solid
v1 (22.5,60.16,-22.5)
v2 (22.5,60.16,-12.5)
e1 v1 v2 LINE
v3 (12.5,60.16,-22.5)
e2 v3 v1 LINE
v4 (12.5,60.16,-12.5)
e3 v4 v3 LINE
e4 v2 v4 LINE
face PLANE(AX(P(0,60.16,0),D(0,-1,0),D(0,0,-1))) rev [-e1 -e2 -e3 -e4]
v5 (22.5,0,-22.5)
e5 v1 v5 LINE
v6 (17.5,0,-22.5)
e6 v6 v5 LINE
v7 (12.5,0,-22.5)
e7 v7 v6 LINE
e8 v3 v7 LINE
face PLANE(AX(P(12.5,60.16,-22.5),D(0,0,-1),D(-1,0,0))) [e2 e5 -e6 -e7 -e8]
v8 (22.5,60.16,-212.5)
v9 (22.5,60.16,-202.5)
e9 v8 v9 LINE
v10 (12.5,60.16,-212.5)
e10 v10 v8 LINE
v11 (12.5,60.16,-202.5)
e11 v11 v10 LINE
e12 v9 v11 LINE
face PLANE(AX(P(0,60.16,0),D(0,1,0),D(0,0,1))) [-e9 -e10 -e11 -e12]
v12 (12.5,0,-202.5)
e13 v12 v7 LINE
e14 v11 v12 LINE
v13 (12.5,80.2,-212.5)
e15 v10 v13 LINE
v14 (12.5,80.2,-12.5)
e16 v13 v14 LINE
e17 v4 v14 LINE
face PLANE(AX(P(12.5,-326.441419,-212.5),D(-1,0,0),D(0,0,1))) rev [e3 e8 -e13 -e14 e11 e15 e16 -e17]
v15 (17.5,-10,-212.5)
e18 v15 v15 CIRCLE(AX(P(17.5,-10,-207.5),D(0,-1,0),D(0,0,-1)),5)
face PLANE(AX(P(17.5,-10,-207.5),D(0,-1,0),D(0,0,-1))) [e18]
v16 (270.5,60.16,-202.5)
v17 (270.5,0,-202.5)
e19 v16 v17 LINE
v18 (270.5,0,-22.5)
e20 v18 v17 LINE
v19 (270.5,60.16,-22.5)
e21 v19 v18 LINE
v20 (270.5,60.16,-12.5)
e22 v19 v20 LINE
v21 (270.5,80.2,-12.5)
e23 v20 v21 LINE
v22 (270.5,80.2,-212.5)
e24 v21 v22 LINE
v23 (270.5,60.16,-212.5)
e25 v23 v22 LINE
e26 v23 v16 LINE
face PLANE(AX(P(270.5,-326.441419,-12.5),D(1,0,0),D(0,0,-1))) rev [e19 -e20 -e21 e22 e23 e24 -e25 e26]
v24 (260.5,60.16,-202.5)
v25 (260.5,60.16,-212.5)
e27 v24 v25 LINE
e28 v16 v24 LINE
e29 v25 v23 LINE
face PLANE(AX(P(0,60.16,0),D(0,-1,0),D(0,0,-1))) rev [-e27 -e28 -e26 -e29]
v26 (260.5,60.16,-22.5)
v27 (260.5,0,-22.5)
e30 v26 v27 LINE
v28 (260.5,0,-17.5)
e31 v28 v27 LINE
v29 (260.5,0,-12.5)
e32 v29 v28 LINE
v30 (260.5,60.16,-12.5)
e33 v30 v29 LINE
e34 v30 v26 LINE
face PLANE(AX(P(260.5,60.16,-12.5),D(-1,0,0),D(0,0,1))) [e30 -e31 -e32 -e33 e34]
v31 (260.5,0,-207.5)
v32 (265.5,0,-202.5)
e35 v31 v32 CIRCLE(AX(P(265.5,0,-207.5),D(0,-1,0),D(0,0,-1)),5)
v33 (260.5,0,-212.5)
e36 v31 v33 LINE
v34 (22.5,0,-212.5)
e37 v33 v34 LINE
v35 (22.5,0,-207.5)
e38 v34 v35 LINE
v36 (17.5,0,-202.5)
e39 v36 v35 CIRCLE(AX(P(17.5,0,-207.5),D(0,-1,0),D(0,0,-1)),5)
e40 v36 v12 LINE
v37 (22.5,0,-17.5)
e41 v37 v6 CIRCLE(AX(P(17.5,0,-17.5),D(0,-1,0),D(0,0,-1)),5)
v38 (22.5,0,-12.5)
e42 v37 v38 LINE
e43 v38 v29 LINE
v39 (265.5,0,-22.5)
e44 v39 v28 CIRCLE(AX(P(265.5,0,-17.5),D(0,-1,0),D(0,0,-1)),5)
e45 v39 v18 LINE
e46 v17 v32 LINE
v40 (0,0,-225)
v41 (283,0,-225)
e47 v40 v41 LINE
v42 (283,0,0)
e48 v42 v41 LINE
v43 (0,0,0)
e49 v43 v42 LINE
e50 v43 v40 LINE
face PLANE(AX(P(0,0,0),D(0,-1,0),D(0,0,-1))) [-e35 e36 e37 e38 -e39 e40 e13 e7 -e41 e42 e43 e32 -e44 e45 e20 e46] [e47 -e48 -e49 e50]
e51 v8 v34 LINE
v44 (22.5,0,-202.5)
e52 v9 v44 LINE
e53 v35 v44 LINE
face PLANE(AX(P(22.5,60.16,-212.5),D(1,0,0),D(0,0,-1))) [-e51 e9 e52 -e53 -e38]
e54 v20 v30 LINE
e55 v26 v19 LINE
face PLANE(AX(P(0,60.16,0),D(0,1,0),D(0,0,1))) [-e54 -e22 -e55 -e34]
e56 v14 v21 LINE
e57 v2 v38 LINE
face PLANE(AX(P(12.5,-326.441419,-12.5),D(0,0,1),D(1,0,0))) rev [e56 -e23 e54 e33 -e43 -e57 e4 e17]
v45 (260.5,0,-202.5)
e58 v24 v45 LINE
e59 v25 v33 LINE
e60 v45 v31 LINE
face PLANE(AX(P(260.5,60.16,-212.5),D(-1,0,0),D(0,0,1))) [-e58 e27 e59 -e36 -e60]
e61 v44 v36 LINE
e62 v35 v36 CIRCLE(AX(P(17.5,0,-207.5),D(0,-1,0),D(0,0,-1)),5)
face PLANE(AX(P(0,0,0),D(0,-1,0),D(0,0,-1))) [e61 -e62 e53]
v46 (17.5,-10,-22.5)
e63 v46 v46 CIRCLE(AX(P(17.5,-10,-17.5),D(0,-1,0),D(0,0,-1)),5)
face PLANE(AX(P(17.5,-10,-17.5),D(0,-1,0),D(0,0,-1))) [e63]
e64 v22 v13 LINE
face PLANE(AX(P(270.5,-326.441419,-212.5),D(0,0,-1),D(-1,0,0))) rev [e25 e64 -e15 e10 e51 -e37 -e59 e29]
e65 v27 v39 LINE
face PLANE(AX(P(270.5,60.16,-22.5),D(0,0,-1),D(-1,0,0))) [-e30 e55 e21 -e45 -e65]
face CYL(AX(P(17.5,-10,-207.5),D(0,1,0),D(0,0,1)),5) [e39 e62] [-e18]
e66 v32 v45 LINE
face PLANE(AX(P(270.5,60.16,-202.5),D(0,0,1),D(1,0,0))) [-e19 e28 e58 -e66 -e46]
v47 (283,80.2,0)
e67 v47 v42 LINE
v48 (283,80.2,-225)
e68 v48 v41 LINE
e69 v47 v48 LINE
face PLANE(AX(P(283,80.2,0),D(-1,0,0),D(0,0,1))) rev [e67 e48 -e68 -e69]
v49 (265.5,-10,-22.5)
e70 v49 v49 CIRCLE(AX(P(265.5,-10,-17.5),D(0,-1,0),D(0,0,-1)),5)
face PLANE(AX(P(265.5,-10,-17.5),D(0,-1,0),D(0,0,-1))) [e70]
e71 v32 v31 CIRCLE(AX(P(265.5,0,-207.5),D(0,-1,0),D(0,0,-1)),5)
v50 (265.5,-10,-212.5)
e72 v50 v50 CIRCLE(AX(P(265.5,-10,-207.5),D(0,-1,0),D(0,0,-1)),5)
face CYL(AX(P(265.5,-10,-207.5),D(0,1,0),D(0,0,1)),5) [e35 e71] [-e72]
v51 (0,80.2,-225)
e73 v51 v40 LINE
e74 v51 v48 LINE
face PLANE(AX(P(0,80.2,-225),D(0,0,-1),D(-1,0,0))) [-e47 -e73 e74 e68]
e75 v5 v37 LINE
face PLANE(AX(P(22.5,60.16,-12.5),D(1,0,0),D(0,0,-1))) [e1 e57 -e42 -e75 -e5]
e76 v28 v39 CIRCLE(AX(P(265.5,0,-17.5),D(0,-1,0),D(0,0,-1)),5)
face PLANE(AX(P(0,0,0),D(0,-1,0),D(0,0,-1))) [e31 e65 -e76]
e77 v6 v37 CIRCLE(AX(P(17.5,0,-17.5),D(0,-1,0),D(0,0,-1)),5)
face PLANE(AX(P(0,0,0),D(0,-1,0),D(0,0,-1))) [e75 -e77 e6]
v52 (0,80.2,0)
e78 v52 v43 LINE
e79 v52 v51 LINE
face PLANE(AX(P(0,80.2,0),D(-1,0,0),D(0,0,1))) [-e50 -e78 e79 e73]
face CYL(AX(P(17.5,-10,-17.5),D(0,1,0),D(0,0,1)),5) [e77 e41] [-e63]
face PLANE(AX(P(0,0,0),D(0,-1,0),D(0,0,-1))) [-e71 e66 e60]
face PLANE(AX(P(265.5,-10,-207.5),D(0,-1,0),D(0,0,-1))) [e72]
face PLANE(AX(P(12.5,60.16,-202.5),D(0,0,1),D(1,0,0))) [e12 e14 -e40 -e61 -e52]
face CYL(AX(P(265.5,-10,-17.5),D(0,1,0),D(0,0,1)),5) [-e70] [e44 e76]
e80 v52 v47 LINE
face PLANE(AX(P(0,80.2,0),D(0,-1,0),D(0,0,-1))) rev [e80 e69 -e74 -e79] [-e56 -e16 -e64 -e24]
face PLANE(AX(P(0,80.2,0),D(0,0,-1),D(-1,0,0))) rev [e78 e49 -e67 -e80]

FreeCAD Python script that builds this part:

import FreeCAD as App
import Part
import Sketcher
Q = App.Units.Quantity


def add_polygon(sketch, points):
    """Adds a closed chain of lines whose ends are joined by coincident constraints."""
    first, n = sketch.GeometryCount, len(points)
    for a, b in zip(points, points[1:] + points[:1]):
        sketch.addGeometry(Part.LineSegment(App.Vector(*a, 0), App.Vector(*b, 0)), False)
    for i in range(n):
        sketch.addConstraint(Sketcher.Constraint("Coincident", first + i, 2, first + (i + 1) % n, 1))

doc = App.newDocument("Part")
params = doc.addObject("Spreadsheet::Sheet", "Params")
for row, (alias, value) in enumerate([
    ("sketch1_width", "283 mm"),
    ("sketch1_height", "225 mm"),
    ("pad1_length", "80.2 mm"),
    ("sketch2_width", "258 mm"),
    ("sketch2_height", "200 mm"),
    ("pocket1_length", "80.2 mm"),
    ("sketch3_width", "10 mm"),
    ("pad2_length", "60.16 mm"),
    ("sketch4_diameter", "10 mm"),
    ("pad3_length", "10 mm"),
], start=1):
    params.set(f"A{row}", alias)
    params.set(f"B{row}", "=" + value)
    params.setAlias(f"B{row}", alias)

body = doc.addObject("PartDesign::Body", "Body")

sketch1 = body.newObject("Sketcher::SketchObject", "Sketch")
sketch1.AttachmentSupport = (doc.getObject("XZ_Plane"), [""])
sketch1.MapMode = "FlatFace"
add_polygon(sketch1, [(0, -225), (0, 0), (283, 0), (283, -225)])
sketch1.addConstraint([
    Sketcher.Constraint("Vertical", 0),
    Sketcher.Constraint("Horizontal", 1),
    Sketcher.Constraint("Vertical", 2),
    Sketcher.Constraint("Horizontal", 3),
    Sketcher.Constraint("Coincident", 0, 2, -1, 1),
    Sketcher.Constraint("DistanceX", 1, 1, 1, 2, Q("283 mm")),
    Sketcher.Constraint("DistanceY", 0, 1, 0, 2, Q("225 mm")),
])
sketch1.setExpression("Constraints[9]", "Params.sketch1_width")
sketch1.setExpression("Constraints[10]", "Params.sketch1_height")
pad1 = body.newObject("PartDesign::Pad", "Pad")
pad1.Profile = sketch1
pad1.setExpression("Length", "Params.pad1_length")
pad1.Reversed = True

sketch2 = body.newObject("Sketcher::SketchObject", "Sketch001")
sketch2.AttachmentSupport = (doc.getObject("XZ_Plane"), [""])
sketch2.MapMode = "FlatFace"
sketch2.AttachmentOffset = App.Placement(App.Vector(0, 0, -80.2), App.Rotation())
add_polygon(sketch2, [(12, -212), (12, -12), (270, -12), (270, -212)])
sketch2.addConstraint([
    Sketcher.Constraint("Vertical", 0),
    Sketcher.Constraint("Horizontal", 1),
    Sketcher.Constraint("Vertical", 2),
    Sketcher.Constraint("Horizontal", 3),
    Sketcher.Constraint("DistanceX", 1, 1, 1, 2, Q("258 mm")),
    Sketcher.Constraint("DistanceY", 0, 1, 0, 2, Q("200 mm")),
    Sketcher.Constraint("DistanceX", -1, 1, 0, 2, Q("12.5 mm")),
    Sketcher.Constraint("DistanceY", 0, 2, -1, 1, Q("12.5 mm")),
])
sketch2.setExpression("Constraints[8]", "Params.sketch2_width")
sketch2.setExpression("Constraints[9]", "Params.sketch2_height")
pocket1 = body.newObject("PartDesign::Pocket", "Pocket")
pocket1.Profile = sketch2
pocket1.setExpression("Length", "Params.pocket1_length")
pocket1.Reversed = True

sketch3 = body.newObject("Sketcher::SketchObject", "Sketch002")
sketch3.AttachmentSupport = (doc.getObject("XZ_Plane"), [""])
sketch3.MapMode = "FlatFace"
add_polygon(sketch3, [(12, -12), (12, -22), (22, -22), (22, -12)])
add_polygon(sketch3, [(12, -202), (12, -212), (22, -212), (22, -202)])
add_polygon(sketch3, [(260, -202), (260, -212), (270, -212), (270, -202)])
add_polygon(sketch3, [(260, -12), (260, -22), (270, -22), (270, -12)])
sketch3.addConstraint([
    Sketcher.Constraint("Vertical", 0),
    Sketcher.Constraint("Horizontal", 1),
    Sketcher.Constraint("Vertical", 2),
    Sketcher.Constraint("Horizontal", 3),
    Sketcher.Constraint("Vertical", 4),
    Sketcher.Constraint("Horizontal", 5),
    Sketcher.Constraint("Vertical", 6),
    Sketcher.Constraint("Horizontal", 7),
    Sketcher.Constraint("Vertical", 8),
    Sketcher.Constraint("Horizontal", 9),
    Sketcher.Constraint("Vertical", 10),
    Sketcher.Constraint("Horizontal", 11),
    Sketcher.Constraint("Vertical", 12),
    Sketcher.Constraint("Horizontal", 13),
    Sketcher.Constraint("Vertical", 14),
    Sketcher.Constraint("Horizontal", 15),
    Sketcher.Constraint("Horizontal", 5, 2, 8, 2),
    Sketcher.Constraint("Horizontal", 7, 2, 10, 2),
    Sketcher.Constraint("Horizontal", 1, 2, 12, 2),
    Sketcher.Constraint("Horizontal", 3, 2, 14, 2),
    Sketcher.Constraint("Vertical", 3, 2, 4, 2),
    Sketcher.Constraint("Vertical", 2, 2, 5, 2),
    Sketcher.Constraint("Vertical", 11, 2, 12, 2),
    Sketcher.Constraint("Vertical", 10, 2, 13, 2),
    Sketcher.Constraint("Equal", 7, 9),
    Sketcher.Constraint("Equal", 15, 0),
    Sketcher.Constraint("Equal", 2, 4),
    Sketcher.Constraint("DistanceX", 1, 1, 1, 2, Q("10 mm")),
    Sketcher.Constraint("DistanceY", 4, 2, 0, 2, Q("190 mm")),
    Sketcher.Constraint("DistanceX", 5, 2, 8, 2, Q("238 mm")),
    Sketcher.Constraint("DistanceX", -1, 1, 0, 2, Q("12.5 mm")),
    Sketcher.Constraint("DistanceY", 0, 2, -1, 1, Q("22.5 mm")),
])
sketch3.setExpression("Constraints[43]", "Params.sketch3_width")
pad2 = body.newObject("PartDesign::Pad", "Pad001")
pad2.Profile = sketch3
pad2.setExpression("Length", "Params.pad2_length")
pad2.Reversed = True

sketch4 = body.newObject("Sketcher::SketchObject", "Sketch003")
sketch4.AttachmentSupport = (doc.getObject("XZ_Plane"), [""])
sketch4.MapMode = "FlatFace"
sketch4.addGeometry([
    Part.Circle(App.Vector(18, -18, 0), App.Vector(0, 0, 1), 5),
    Part.Circle(App.Vector(266, -18, 0), App.Vector(0, 0, 1), 5),
    Part.Circle(App.Vector(266, -208, 0), App.Vector(0, 0, 1), 5),
    Part.Circle(App.Vector(18, -208, 0), App.Vector(0, 0, 1), 5),
], False)
sketch4.addConstraint([
    Sketcher.Constraint("Equal", 0, 1),
    Sketcher.Constraint("Equal", 1, 2),
    Sketcher.Constraint("Equal", 2, 3),
    Sketcher.Constraint("Horizontal", 0, 3, 1, 3),
    Sketcher.Constraint("Horizontal", 2, 3, 3, 3),
    Sketcher.Constraint("Vertical", 1, 3, 2, 3),
    Sketcher.Constraint("Vertical", 0, 3, 3, 3),
    Sketcher.Constraint("Diameter", 0, Q("10 mm")),
    Sketcher.Constraint("DistanceX", 0, 3, 1, 3, Q("248 mm")),
    Sketcher.Constraint("DistanceY", 2, 3, 1, 3, Q("190 mm")),
    Sketcher.Constraint("DistanceX", -1, 1, 0, 3, Q("17.5 mm")),
    Sketcher.Constraint("DistanceY", 0, 3, -1, 1, Q("17.5 mm")),
])
sketch4.setExpression("Constraints[7]", "Params.sketch4_diameter")
pad3 = body.newObject("PartDesign::Pad", "Pad002")
pad3.Profile = sketch4
pad3.setExpression("Length", "Params.pad3_length")

doc.recompute()
